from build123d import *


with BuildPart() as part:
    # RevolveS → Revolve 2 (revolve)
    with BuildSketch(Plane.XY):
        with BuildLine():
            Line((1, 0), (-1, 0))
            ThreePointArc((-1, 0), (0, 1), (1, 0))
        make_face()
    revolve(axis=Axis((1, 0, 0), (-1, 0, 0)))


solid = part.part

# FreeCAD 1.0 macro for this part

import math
import FreeCAD as App
import Part
import Sketcher

V = App.Vector
Q = App.Units.Quantity

doc = App.newDocument("Part")
params = doc.addObject("Spreadsheet::Sheet", "Params")
for row, (alias, value) in enumerate([
    ("sketch1_radius", "1 mm"),
    ("revolution_angle", "360 deg"),
], start=1):
    params.set(f"A{row}", alias)
    params.set(f"B{row}", "=" + value)
    params.setAlias(f"B{row}", alias)

body = doc.addObject("PartDesign::Body", "Body")

sketch1 = body.newObject("Sketcher::SketchObject", "Sketch")
sketch1.AttachmentSupport = (doc.getObject("XY_Plane"), [""])
sketch1.MapMode = "FlatFace"
sketch1.addGeometry([
    Part.LineSegment(V(-1, 0, 0), V(1, 0, 0)),
    Part.ArcOfCircle(Part.Circle(V(0, 0, 0), V(0, 0, 1), 1), math.radians(0), math.radians(180)),
], False)
sketch1.addConstraint([
    Sketcher.Constraint("Coincident", 0, 1, 1, 2),
    Sketcher.Constraint("Coincident", 1, 1, 0, 2),
    Sketcher.Constraint("Horizontal", 0),
    Sketcher.Constraint("Coincident", 1, 3, -1, 1),
    Sketcher.Constraint("PointOnObject", 0, 1, -1),
    Sketcher.Constraint("Radius", 1, Q("1 mm")),
])
sketch1.setExpression("Constraints[5]", "Params.sketch1_radius")
revolution = body.newObject("PartDesign::Revolution", "Revolution")
revolution.Profile = sketch1
revolution.ReferenceAxis = (sketch1, ["H_Axis"])
revolution.setExpression("Angle", "Params.revolution_angle")

doc.recompute()
